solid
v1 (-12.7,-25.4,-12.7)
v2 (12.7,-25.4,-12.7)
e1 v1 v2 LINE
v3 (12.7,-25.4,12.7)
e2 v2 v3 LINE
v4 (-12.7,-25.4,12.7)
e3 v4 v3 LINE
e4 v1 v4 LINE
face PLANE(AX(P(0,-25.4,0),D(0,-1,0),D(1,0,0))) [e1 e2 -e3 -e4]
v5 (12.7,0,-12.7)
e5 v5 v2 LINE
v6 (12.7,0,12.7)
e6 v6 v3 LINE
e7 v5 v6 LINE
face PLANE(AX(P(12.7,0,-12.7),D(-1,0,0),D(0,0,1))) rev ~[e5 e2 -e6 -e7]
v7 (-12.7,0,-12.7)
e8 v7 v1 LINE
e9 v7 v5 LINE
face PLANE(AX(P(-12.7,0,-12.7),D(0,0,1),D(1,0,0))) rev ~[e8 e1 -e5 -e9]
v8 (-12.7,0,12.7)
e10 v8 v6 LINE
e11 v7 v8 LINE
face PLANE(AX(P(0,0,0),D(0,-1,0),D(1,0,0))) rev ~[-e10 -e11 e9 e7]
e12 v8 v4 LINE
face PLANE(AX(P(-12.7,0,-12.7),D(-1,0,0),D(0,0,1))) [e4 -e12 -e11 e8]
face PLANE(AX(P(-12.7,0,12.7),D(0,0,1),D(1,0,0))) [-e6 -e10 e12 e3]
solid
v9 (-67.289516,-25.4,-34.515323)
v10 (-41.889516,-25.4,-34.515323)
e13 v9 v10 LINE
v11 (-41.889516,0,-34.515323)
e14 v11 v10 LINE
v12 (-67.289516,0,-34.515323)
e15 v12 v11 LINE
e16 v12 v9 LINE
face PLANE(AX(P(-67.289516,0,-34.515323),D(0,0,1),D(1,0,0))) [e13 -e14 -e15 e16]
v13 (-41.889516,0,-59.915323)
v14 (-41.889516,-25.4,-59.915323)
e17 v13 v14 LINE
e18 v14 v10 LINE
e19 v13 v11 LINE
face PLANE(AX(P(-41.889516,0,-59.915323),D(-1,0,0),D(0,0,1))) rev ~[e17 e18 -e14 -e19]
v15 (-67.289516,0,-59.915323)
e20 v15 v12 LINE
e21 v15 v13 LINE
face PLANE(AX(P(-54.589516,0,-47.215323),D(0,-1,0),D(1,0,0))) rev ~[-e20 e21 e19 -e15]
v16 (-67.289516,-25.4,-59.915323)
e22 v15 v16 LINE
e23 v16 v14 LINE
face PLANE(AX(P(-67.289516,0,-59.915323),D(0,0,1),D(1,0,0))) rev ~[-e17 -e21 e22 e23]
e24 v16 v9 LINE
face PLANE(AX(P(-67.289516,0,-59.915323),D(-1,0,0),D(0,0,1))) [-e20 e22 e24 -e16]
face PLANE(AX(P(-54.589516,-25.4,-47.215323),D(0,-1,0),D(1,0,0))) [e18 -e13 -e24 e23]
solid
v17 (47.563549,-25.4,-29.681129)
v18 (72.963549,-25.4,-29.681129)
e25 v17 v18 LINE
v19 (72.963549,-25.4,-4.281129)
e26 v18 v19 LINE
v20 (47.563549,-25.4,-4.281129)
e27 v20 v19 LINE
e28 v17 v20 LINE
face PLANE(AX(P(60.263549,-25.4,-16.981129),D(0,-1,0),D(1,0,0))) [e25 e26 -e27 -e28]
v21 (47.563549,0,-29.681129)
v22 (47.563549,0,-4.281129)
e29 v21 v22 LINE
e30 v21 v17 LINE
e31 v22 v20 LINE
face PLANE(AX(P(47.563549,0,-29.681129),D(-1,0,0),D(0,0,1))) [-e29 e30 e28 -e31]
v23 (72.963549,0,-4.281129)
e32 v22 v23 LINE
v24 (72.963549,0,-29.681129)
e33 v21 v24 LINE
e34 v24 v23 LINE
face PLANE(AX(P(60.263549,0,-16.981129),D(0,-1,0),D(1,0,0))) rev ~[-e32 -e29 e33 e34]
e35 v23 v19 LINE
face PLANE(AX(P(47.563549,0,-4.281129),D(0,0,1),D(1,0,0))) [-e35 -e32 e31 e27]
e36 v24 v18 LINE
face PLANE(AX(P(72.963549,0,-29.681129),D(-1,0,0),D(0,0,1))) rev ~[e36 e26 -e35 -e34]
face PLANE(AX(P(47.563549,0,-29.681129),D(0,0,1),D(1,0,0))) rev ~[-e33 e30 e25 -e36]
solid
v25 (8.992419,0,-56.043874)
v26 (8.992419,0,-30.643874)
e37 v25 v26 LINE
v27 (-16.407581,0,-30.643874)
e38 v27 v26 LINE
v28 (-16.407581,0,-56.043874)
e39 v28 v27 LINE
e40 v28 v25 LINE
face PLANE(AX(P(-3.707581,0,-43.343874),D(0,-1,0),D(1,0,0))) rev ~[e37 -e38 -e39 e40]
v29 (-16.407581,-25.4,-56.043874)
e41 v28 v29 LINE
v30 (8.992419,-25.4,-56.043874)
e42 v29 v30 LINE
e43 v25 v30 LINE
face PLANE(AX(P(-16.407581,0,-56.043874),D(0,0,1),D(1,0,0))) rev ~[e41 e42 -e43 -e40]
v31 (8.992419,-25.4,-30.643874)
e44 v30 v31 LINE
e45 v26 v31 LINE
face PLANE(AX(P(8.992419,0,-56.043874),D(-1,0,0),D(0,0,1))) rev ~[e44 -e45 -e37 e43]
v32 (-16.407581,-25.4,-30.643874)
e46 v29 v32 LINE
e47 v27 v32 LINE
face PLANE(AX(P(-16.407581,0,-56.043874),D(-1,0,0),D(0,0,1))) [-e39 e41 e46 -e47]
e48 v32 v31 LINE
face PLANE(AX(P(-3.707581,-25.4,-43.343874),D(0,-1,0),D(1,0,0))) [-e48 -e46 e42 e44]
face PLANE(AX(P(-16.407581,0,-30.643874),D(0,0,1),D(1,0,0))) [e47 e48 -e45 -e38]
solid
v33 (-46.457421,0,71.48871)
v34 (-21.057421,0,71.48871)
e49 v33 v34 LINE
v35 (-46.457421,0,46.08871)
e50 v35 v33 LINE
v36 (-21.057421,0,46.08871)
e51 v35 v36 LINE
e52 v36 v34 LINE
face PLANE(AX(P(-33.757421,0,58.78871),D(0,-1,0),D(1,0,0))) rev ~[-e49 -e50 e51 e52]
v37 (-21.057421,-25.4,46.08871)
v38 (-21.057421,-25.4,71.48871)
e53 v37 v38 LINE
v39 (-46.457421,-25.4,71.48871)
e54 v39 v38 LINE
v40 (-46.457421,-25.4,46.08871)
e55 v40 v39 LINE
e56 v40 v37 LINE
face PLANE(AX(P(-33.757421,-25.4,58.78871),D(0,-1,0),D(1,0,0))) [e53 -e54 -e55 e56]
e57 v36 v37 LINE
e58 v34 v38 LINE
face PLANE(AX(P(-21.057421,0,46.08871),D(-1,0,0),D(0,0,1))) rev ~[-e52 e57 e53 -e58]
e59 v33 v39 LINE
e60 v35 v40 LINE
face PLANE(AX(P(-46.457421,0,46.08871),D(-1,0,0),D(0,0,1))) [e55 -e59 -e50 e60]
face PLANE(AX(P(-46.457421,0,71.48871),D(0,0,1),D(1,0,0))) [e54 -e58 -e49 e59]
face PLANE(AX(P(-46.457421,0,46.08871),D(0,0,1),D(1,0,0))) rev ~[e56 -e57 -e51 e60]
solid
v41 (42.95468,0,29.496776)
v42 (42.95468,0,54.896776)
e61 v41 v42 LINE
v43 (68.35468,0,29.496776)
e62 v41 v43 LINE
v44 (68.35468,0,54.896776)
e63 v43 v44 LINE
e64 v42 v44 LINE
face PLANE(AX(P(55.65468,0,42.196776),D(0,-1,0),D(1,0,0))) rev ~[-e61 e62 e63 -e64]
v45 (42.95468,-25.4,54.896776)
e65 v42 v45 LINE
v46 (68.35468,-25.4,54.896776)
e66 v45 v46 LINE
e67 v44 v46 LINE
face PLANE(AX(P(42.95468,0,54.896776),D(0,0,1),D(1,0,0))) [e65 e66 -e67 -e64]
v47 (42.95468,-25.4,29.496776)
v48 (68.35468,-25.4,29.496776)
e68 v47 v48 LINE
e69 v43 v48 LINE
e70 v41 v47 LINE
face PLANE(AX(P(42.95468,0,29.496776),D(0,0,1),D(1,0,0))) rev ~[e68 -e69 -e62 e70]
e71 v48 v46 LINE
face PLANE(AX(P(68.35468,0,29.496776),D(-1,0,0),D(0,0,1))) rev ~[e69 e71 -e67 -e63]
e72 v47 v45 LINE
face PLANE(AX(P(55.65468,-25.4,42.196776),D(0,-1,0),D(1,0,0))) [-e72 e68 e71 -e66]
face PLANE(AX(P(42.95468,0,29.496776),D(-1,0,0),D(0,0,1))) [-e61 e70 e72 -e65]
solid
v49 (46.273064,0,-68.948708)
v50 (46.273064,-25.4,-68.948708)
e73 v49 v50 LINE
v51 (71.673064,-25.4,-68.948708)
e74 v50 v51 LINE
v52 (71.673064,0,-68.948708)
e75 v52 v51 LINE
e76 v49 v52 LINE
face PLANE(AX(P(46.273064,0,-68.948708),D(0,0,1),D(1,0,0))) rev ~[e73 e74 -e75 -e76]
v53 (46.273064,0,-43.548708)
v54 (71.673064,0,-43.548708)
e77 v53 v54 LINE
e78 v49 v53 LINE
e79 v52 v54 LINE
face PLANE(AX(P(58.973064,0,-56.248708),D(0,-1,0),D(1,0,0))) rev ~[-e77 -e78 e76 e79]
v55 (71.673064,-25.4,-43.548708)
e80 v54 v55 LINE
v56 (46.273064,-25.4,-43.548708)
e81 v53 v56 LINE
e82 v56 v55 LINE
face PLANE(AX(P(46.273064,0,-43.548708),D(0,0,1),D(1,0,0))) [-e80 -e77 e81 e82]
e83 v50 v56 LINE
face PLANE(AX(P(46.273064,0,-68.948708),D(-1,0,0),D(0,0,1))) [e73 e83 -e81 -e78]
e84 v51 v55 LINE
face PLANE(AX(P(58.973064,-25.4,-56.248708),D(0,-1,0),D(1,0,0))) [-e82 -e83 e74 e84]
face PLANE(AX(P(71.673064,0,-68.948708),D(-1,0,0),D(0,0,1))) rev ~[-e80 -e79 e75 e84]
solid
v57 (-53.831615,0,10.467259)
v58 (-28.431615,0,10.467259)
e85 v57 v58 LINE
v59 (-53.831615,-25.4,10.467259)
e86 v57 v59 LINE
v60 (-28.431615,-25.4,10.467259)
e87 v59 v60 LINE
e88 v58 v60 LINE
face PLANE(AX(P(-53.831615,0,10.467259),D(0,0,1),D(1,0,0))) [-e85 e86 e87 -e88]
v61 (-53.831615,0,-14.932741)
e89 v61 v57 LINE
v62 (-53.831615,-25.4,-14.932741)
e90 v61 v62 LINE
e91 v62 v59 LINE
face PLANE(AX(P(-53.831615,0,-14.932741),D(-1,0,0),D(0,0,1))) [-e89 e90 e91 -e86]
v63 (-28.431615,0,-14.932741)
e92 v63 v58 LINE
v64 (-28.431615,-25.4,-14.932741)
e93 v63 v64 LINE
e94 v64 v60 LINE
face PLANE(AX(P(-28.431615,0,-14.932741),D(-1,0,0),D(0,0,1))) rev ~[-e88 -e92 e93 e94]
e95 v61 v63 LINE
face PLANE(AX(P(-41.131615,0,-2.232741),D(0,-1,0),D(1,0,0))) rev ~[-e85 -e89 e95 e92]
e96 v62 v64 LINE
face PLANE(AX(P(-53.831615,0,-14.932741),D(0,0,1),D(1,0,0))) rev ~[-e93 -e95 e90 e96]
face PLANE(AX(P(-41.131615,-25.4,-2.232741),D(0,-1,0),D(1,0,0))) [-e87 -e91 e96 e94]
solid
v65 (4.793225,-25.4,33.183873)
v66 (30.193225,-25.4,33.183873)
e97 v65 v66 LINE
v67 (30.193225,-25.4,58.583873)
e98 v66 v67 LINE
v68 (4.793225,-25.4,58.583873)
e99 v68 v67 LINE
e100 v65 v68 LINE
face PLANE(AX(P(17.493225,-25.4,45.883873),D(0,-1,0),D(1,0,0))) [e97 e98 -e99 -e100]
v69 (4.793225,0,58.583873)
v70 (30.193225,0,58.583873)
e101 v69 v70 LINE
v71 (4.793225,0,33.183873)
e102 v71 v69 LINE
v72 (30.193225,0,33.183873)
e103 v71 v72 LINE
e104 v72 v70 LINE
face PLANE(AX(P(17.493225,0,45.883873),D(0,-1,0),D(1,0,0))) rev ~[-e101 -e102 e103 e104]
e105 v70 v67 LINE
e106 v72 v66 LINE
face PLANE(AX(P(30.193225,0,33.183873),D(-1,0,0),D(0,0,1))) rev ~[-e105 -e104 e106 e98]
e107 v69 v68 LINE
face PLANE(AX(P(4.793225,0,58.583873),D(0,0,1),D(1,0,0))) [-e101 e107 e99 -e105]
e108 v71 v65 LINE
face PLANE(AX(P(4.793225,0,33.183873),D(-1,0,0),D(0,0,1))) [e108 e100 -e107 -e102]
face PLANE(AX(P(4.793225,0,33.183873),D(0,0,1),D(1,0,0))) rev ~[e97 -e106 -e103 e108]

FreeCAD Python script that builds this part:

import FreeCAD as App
import Part
import Sketcher
Q = App.Units.Quantity


def add_polygon(sketch, points):
    """Adds a closed chain of lines whose ends are joined by coincident constraints."""
    first, n = sketch.GeometryCount, len(points)
    for a, b in zip(points, points[1:] + points[:1]):
        sketch.addGeometry(Part.LineSegment(App.Vector(*a, 0), App.Vector(*b, 0)), False)
    for i in range(n):
        sketch.addConstraint(Sketcher.Constraint("Coincident", first + i, 2, first + (i + 1) % n, 1))

doc = App.newDocument("Part")
body = doc.addObject("PartDesign::Body", "Body")
body.AllowCompound = True

sketch1 = doc.addObject("Sketcher::SketchObject", "Sketch")
body.addObject(sketch1)
sketch1.AttachmentSupport = (doc.XZ_Plane, [""])
sketch1.MapMode = "FlatFace"
add_polygon(sketch1, [(-46, 71), (-46, 46), (-21, 46), (-21, 71)])
add_polygon(sketch1, [(5, 59), (5, 33), (30, 33), (30, 59)])
add_polygon(sketch1, [(43, 55), (43, 29), (68, 29), (68, 55)])
add_polygon(sketch1, [(48, -4), (48, -30), (73, -30), (73, -4)])
add_polygon(sketch1, [(46, -44), (46, -69), (72, -69), (72, -44)])
add_polygon(sketch1, [(-16, -31), (-16, -56), (9, -56), (9, -31)])
add_polygon(sketch1, [(-13, 13), (-13, -13), (13, -13), (13, 13)])
add_polygon(sketch1, [(-54, 10), (-54, -15), (-28, -15), (-28, 10)])
add_polygon(sketch1, [(-67, -35), (-67, -60), (-42, -60), (-42, -35)])
sketch1.addConstraint([
    Sketcher.Constraint("Vertical", 0),
    Sketcher.Constraint("Horizontal", 1),
    Sketcher.Constraint("Vertical", 2),
    Sketcher.Constraint("Horizontal", 3),
    Sketcher.Constraint("Vertical", 4),
    Sketcher.Constraint("Horizontal", 5),
    Sketcher.Constraint("Vertical", 6),
    Sketcher.Constraint("Horizontal", 7),
    Sketcher.Constraint("Vertical", 8),
    Sketcher.Constraint("Horizontal", 9),
    Sketcher.Constraint("Vertical", 10),
    Sketcher.Constraint("Horizontal", 11),
    Sketcher.Constraint("Vertical", 12),
    Sketcher.Constraint("Horizontal", 13),
    Sketcher.Constraint("Vertical", 14),
    Sketcher.Constraint("Horizontal", 15),
    Sketcher.Constraint("Vertical", 16),
    Sketcher.Constraint("Horizontal", 17),
    Sketcher.Constraint("Vertical", 18),
    Sketcher.Constraint("Horizontal", 19),
    Sketcher.Constraint("Vertical", 20),
    Sketcher.Constraint("Horizontal", 21),
    Sketcher.Constraint("Vertical", 22),
    Sketcher.Constraint("Horizontal", 23),
    Sketcher.Constraint("Vertical", 24),
    Sketcher.Constraint("Horizontal", 25),
    Sketcher.Constraint("Vertical", 26),
    Sketcher.Constraint("Horizontal", 27),
    Sketcher.Constraint("Vertical", 28),
    Sketcher.Constraint("Horizontal", 29),
    Sketcher.Constraint("Vertical", 30),
    Sketcher.Constraint("Horizontal", 31),
    Sketcher.Constraint("Vertical", 32),
    Sketcher.Constraint("Horizontal", 33),
    Sketcher.Constraint("Vertical", 34),
    Sketcher.Constraint("Horizontal", 35),
    Sketcher.Constraint("Symmetric", 24, 2, 26, 2, -1, 1),
    Sketcher.Constraint("Equal", 3, 5),
    Sketcher.Constraint("Equal", 7, 9),
    Sketcher.Constraint("Equal", 11, 13),
    Sketcher.Constraint("Equal", 15, 17),
    Sketcher.Constraint("Equal", 19, 21),
    Sketcher.Constraint("Equal", 23, 25),
    Sketcher.Constraint("Equal", 27, 29),
    Sketcher.Constraint("Equal", 31, 33),
    Sketcher.Constraint("Equal", 35, 0),
    Sketcher.Constraint("Equal", 2, 4),
    Sketcher.Constraint("Equal", 6, 8),
    Sketcher.Constraint("Equal", 10, 12),
    Sketcher.Constraint("Equal", 14, 16),
    Sketcher.Constraint("Equal", 18, 20),
    Sketcher.Constraint("Equal", 22, 24),
    Sketcher.Constraint("Equal", 26, 28),
    Sketcher.Constraint("Equal", 30, 32),
    Sketcher.Constraint("DistanceX", 1, 1, 1, 2, Q("1 in")),
    Sketcher.Constraint("DistanceY", 12, 2, 5, 2, Q("2.4750001 in")),
    Sketcher.Constraint("DistanceX", 1, 2, 8, 2, 64.012101),
    Sketcher.Constraint("DistanceX", 32, 2, 28, 2, 13.457901),
    Sketcher.Constraint("DistanceX", 0, 2, -1, 1, 46.457421),
    Sketcher.Constraint("DistanceY", -1, 1, 0, 2, 46.08871),
    Sketcher.Constraint("DistanceX", -1, 1, 12, 2, 47.563549),
    Sketcher.Constraint("DistanceY", 12, 2, -1, 1, 29.681129),
    Sketcher.Constraint("DistanceX", 20, 2, -1, 1, 16.407581),
    Sketcher.Constraint("DistanceY", 28, 2, -1, 1, 14.932741),
    Sketcher.Constraint("DistanceY", 16, 2, 12, 2, 39.267579),
    Sketcher.Constraint("DistanceY", 32, 2, 20, 2, 3.871449),
    Sketcher.Constraint("DistanceY", 32, 2, 31, 2, 70.382582),
    Sketcher.Constraint("DistanceX", -1, 1, 4, 2, 4.793225),
    Sketcher.Constraint("DistanceY", -1, 1, 8, 2, 29.496776),
    Sketcher.Constraint("DistanceX", -1, 1, 16, 2, 46.273064),
    Sketcher.Constraint("DistanceX", 28, 2, -1, 1, 53.831615),
])
pad1 = doc.addObject("PartDesign::Pad", "Pad")
body.addObject(pad1)
pad1.Profile = sketch1
pad1.Length = Q("1 in")

doc.recompute()
